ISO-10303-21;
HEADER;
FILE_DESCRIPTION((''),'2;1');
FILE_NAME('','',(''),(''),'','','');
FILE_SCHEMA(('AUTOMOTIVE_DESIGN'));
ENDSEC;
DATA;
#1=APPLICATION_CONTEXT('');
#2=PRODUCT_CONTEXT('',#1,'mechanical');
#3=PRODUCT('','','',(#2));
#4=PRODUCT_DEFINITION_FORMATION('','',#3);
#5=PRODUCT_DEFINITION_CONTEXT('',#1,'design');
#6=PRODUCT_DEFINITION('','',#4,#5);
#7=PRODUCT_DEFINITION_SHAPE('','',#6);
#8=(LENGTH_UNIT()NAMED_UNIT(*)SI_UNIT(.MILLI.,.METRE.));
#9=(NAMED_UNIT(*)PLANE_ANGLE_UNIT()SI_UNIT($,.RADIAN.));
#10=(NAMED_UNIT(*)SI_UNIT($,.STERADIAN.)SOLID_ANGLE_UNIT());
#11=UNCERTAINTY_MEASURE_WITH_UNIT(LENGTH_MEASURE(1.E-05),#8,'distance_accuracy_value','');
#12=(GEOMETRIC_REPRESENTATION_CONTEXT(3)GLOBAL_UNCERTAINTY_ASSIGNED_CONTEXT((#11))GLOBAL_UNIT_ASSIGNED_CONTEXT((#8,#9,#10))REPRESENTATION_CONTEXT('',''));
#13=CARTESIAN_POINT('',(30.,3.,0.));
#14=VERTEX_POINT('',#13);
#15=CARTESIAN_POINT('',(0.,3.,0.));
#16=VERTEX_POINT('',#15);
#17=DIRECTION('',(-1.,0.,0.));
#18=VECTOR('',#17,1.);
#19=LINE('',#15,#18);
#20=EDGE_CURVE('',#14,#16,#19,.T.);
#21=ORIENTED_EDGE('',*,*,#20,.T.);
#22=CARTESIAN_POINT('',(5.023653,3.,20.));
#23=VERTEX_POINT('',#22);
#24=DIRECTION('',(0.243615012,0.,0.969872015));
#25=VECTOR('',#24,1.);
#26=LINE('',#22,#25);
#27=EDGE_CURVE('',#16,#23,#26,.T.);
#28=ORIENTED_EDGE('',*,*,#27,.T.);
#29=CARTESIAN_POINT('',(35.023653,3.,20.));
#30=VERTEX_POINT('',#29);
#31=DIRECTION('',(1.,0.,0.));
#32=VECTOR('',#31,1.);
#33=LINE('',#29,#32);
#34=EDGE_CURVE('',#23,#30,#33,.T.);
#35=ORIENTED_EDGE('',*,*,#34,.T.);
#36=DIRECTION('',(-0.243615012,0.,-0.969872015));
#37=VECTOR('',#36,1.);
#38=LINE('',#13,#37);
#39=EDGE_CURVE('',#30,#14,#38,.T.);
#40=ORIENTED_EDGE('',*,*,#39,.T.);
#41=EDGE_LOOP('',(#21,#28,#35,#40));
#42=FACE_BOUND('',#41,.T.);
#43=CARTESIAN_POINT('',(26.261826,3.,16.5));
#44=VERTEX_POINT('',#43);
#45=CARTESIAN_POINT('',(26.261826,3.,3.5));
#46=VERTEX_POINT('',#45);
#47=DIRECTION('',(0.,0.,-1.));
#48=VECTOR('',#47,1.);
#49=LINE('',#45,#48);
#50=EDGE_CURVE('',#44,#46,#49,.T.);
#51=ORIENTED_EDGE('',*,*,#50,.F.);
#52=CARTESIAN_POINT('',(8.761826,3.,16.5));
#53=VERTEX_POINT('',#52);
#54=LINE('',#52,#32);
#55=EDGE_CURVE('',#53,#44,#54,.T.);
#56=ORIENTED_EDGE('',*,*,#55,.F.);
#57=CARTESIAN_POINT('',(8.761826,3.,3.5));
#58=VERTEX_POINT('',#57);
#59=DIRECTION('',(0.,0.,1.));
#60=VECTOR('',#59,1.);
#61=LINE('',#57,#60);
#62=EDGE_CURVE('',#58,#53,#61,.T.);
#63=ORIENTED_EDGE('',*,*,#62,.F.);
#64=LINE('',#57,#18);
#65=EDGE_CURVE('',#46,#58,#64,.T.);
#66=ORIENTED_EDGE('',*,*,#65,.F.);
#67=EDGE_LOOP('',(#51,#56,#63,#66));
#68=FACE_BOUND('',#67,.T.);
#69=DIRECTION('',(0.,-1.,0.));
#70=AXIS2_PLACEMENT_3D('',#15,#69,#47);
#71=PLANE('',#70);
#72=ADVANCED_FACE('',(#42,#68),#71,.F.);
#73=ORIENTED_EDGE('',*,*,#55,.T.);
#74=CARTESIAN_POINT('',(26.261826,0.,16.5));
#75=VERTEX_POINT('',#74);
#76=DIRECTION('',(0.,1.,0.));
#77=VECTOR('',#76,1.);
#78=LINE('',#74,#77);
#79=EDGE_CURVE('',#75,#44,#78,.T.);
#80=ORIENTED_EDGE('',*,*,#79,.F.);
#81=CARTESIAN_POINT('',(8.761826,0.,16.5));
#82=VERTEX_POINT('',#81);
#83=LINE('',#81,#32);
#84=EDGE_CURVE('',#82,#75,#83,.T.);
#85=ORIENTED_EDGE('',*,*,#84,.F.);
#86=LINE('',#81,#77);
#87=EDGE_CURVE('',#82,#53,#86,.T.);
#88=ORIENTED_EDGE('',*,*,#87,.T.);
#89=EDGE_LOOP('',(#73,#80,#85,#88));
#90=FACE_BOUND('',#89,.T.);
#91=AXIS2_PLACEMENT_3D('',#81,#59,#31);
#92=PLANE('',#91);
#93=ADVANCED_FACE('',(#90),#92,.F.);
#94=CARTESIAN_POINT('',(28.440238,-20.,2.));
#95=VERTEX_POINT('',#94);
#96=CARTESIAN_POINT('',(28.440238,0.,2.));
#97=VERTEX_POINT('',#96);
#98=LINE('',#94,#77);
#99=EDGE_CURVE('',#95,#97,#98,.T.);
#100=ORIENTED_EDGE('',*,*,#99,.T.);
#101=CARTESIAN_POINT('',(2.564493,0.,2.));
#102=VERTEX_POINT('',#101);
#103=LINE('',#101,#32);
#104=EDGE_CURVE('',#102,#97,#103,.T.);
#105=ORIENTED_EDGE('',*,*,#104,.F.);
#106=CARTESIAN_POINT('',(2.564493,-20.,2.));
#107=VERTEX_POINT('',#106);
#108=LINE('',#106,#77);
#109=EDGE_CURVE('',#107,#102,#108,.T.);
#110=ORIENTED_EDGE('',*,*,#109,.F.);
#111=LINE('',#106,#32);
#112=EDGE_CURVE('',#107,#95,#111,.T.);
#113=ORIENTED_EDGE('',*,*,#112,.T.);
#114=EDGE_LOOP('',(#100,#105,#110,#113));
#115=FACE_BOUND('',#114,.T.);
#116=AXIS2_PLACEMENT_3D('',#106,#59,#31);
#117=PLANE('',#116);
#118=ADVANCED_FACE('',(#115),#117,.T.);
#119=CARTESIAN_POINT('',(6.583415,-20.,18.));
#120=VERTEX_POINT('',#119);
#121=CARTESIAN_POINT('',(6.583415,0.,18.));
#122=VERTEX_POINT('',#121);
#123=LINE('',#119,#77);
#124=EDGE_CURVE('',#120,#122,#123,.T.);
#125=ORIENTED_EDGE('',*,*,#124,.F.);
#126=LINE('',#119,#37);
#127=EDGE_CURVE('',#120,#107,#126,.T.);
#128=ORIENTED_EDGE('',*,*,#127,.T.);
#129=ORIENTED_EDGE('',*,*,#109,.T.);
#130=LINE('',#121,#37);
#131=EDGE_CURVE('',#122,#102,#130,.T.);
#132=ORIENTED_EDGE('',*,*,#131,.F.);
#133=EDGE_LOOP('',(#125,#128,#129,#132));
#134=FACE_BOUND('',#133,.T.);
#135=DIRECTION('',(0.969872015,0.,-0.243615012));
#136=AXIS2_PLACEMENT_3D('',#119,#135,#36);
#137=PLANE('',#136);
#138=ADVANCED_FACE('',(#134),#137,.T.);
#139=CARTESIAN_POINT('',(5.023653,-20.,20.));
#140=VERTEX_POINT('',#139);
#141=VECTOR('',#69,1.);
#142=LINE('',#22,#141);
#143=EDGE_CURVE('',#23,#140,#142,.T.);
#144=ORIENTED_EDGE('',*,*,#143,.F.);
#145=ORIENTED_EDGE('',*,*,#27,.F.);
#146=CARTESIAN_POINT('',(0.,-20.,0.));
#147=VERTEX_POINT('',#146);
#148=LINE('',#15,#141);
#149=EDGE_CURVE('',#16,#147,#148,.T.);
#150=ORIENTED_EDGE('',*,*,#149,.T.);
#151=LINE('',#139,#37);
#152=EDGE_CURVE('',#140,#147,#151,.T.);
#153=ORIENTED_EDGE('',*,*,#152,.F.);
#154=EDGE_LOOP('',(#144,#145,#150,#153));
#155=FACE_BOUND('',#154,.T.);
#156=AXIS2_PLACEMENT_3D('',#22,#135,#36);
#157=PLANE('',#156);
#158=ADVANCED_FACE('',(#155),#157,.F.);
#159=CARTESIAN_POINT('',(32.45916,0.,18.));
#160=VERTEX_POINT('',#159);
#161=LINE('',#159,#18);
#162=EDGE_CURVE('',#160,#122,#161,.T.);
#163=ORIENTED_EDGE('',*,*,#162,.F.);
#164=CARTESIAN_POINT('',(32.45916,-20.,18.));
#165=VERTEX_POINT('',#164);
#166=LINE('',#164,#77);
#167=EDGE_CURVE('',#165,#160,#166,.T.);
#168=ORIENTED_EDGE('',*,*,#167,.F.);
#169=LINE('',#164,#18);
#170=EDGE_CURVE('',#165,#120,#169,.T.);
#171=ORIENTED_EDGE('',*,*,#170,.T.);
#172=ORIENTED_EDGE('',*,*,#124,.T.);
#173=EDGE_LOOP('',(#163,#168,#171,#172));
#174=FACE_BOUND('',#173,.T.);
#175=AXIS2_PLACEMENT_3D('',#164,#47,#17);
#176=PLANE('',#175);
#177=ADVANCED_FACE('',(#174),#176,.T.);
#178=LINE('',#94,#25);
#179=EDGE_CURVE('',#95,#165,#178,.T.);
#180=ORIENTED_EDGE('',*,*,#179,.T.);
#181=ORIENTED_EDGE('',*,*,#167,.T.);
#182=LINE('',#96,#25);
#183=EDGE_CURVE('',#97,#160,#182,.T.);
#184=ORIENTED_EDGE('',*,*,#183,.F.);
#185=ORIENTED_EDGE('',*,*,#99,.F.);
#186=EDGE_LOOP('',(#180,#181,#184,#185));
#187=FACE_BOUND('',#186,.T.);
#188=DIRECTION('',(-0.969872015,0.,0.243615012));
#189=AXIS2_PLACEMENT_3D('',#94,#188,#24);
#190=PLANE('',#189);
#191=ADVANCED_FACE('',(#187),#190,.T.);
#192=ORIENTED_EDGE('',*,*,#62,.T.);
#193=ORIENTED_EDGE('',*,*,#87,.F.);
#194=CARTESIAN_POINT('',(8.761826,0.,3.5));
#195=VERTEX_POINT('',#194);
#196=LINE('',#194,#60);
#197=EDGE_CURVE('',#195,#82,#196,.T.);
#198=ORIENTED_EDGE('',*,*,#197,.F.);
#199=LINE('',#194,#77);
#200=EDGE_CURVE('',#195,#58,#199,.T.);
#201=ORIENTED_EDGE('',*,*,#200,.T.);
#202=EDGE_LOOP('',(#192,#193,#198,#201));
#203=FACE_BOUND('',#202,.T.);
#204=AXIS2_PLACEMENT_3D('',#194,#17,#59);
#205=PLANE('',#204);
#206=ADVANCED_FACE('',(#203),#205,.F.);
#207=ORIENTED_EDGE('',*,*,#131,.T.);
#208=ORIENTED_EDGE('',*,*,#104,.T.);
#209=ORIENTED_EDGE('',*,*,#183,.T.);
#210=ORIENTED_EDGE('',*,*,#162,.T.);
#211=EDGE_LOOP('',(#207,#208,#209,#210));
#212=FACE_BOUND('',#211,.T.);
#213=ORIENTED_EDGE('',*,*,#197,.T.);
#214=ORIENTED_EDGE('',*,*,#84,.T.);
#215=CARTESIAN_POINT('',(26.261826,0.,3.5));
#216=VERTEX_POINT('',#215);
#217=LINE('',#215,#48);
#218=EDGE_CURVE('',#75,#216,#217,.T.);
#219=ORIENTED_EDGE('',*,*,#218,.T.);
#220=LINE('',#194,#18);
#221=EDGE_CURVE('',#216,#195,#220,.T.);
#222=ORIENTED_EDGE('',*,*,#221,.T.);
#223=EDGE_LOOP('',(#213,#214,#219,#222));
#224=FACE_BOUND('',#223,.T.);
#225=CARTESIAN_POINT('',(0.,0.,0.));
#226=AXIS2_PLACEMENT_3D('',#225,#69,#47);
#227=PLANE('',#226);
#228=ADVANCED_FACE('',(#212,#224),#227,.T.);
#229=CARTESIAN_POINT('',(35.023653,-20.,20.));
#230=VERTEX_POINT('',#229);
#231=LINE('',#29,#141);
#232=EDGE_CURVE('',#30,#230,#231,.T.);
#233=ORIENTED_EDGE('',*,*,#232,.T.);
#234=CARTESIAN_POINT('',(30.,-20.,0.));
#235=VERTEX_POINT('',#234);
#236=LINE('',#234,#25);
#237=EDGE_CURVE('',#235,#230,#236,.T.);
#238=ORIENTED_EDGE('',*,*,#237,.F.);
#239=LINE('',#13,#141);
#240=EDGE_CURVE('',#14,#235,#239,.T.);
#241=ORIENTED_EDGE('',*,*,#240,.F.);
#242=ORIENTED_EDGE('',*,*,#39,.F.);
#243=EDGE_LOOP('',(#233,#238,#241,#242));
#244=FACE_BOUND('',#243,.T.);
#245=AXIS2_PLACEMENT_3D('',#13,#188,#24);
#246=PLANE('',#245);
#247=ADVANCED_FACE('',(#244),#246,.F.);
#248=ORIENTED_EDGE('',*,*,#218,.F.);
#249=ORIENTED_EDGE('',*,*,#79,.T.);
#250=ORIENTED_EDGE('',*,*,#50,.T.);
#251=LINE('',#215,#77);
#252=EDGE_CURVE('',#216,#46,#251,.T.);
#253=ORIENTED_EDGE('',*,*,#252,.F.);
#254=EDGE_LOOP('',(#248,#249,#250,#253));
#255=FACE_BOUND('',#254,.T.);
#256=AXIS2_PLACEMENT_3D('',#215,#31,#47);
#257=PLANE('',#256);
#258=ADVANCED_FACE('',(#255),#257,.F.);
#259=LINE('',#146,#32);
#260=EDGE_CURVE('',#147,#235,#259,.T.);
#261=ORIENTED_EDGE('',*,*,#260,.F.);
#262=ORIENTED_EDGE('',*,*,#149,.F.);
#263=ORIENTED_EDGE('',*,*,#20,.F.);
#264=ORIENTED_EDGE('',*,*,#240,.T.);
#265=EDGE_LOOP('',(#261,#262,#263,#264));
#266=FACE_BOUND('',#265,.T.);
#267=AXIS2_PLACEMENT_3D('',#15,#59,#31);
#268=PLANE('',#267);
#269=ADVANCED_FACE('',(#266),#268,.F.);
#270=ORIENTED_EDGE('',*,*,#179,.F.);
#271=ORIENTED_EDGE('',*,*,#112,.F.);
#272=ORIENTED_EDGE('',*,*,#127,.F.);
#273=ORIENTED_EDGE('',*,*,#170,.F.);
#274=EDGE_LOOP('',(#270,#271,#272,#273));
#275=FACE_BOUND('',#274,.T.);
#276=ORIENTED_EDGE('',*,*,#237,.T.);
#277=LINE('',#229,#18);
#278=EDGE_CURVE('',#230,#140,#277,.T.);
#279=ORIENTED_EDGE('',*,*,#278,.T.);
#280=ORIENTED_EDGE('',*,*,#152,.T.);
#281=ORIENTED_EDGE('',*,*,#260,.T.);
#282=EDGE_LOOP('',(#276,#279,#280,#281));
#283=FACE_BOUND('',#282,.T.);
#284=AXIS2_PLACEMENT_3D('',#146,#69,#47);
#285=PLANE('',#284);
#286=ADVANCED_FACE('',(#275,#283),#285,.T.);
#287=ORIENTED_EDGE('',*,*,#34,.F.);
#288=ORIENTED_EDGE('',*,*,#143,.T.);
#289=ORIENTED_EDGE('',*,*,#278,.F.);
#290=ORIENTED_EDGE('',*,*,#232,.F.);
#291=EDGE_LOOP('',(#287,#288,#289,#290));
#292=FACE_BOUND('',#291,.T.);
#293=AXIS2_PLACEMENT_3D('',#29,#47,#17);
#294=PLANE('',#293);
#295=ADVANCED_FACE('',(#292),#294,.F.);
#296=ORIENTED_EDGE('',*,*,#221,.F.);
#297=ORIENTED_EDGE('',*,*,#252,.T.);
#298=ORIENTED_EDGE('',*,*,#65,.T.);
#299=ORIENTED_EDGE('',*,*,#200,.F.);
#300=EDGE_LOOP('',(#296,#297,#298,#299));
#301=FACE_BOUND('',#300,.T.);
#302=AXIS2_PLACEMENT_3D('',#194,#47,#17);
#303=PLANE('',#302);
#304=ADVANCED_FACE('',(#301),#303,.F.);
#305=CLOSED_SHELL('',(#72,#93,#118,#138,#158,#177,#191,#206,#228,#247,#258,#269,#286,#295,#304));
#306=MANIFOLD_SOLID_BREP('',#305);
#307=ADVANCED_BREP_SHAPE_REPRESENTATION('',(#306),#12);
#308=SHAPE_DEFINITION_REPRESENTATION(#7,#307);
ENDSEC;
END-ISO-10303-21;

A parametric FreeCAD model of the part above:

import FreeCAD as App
import Part
import Sketcher
Q = App.Units.Quantity


def add_polygon(sketch, points):
    """Adds a closed chain of lines whose ends are joined by coincident constraints."""
    first, n = sketch.GeometryCount, len(points)
    for a, b in zip(points, points[1:] + points[:1]):
        sketch.addGeometry(Part.LineSegment(App.Vector(*a, 0), App.Vector(*b, 0)), False)
    for i in range(n):
        sketch.addConstraint(Sketcher.Constraint("Coincident", first + i, 2, first + (i + 1) % n, 1))

doc = App.newDocument("Part")
body = doc.addObject("PartDesign::Body", "Body")

sketch1 = doc.addObject("Sketcher::SketchObject", "Sketch")
body.addObject(sketch1)
sketch1.AttachmentSupport = (doc.XZ_Plane, [""])
sketch1.MapMode = "FlatFace"
add_polygon(sketch1, [(30, 0), (0, 0), (5, 20), (35, 20)])
sketch1.addConstraint([
    Sketcher.Constraint("Horizontal", 0),
    Sketcher.Constraint("Horizontal", 2),
    Sketcher.Constraint("Coincident", 0, 2, -1, 1),
    Sketcher.Constraint("Parallel", 1, 3),
    Sketcher.Constraint("DistanceX", 0, 2, 0, 1, Q("30 mm")),
    Sketcher.Constraint("DistanceY", -1, 1, 1, 2, Q("20 mm")),
    Sketcher.Constraint("Angle", 1, Q("75.9 deg")),
])
pad1 = doc.addObject("PartDesign::Pad", "Pad")
body.addObject(pad1)
pad1.Profile = sketch1
pad1.Length = 3
pad1.Reversed = True

sketch2 = doc.addObject("Sketcher::SketchObject", "Sketch001")
body.addObject(sketch2)
sketch2.AttachmentSupport = (doc.XZ_Plane, [""])
sketch2.MapMode = "FlatFace"
sketch2.AttachmentOffset = App.Placement(App.Vector(0, 0, -3), App.Rotation())
add_polygon(sketch2, [(9, 4), (9, 16), (26, 16), (26, 4)])
sketch2.addConstraint([
    Sketcher.Constraint("Vertical", 0),
    Sketcher.Constraint("Horizontal", 1),
    Sketcher.Constraint("Vertical", 2),
    Sketcher.Constraint("Horizontal", 3),
    Sketcher.Constraint("DistanceY", 0, 1, 0, 2, Q("13 mm")),
    Sketcher.Constraint("DistanceX", 1, 1, 1, 2, Q("17.5 mm")),
    Sketcher.Constraint("DistanceY", -1, 1, 0, 2, Q("16.5 mm")),
    Sketcher.Constraint("DistanceX", -1, 1, 0, 2, Q("8.761826 mm")),
])
pocket1 = doc.addObject("PartDesign::Pocket", "Pocket")
body.addObject(pocket1)
pocket1.Profile = sketch2
pocket1.Type = "ThroughAll"
pocket1.Reversed = True

sketch3 = doc.addObject("Sketcher::SketchObject", "Sketch002")
body.addObject(sketch3)
sketch3.AttachmentSupport = (doc.XZ_Plane, [""])
sketch3.MapMode = "FlatFace"
add_polygon(sketch3, [(5, 20), (0, 0), (30, 0), (35, 20)])
add_polygon(sketch3, [(3, 2), (7, 18), (32, 18), (28, 2)])
sketch3.addConstraint([
    Sketcher.Constraint("Horizontal", 1),
    Sketcher.Constraint("Horizontal", 3),
    Sketcher.Constraint("Horizontal", 5),
    Sketcher.Constraint("Horizontal", 7),
    Sketcher.Constraint("Coincident", 0, 2, -1, 1),
    Sketcher.Constraint("Parallel", 0, 2),
    Sketcher.Constraint("Parallel", 2, 4),
    Sketcher.Constraint("Parallel", 4, 6),
    Sketcher.Constraint("DistanceX", 1, 1, 1, 2, Q("30 mm")),
    Sketcher.Constraint("DistanceY", -1, 1, 2, 2, Q("20 mm")),
    Sketcher.Constraint("DistanceY", -1, 1, 4, 2, Q("18 mm")),
    Sketcher.Constraint("DistanceY", -1, 1, 6, 2, Q("2 mm")),
    Sketcher.Constraint("Angle", 0, Q("-104.1 deg")),
    Sketcher.Constraint("DistanceX", 5, 1, 5, 2, Q("25.875744 mm")),
    Sketcher.Constraint("DistanceX", -1, 1, 5, 2, Q("32.45916 mm")),
])
pad2 = doc.addObject("PartDesign::Pad", "Pad001")
body.addObject(pad2)
pad2.Profile = sketch3
pad2.Length = 20

doc.recompute()
